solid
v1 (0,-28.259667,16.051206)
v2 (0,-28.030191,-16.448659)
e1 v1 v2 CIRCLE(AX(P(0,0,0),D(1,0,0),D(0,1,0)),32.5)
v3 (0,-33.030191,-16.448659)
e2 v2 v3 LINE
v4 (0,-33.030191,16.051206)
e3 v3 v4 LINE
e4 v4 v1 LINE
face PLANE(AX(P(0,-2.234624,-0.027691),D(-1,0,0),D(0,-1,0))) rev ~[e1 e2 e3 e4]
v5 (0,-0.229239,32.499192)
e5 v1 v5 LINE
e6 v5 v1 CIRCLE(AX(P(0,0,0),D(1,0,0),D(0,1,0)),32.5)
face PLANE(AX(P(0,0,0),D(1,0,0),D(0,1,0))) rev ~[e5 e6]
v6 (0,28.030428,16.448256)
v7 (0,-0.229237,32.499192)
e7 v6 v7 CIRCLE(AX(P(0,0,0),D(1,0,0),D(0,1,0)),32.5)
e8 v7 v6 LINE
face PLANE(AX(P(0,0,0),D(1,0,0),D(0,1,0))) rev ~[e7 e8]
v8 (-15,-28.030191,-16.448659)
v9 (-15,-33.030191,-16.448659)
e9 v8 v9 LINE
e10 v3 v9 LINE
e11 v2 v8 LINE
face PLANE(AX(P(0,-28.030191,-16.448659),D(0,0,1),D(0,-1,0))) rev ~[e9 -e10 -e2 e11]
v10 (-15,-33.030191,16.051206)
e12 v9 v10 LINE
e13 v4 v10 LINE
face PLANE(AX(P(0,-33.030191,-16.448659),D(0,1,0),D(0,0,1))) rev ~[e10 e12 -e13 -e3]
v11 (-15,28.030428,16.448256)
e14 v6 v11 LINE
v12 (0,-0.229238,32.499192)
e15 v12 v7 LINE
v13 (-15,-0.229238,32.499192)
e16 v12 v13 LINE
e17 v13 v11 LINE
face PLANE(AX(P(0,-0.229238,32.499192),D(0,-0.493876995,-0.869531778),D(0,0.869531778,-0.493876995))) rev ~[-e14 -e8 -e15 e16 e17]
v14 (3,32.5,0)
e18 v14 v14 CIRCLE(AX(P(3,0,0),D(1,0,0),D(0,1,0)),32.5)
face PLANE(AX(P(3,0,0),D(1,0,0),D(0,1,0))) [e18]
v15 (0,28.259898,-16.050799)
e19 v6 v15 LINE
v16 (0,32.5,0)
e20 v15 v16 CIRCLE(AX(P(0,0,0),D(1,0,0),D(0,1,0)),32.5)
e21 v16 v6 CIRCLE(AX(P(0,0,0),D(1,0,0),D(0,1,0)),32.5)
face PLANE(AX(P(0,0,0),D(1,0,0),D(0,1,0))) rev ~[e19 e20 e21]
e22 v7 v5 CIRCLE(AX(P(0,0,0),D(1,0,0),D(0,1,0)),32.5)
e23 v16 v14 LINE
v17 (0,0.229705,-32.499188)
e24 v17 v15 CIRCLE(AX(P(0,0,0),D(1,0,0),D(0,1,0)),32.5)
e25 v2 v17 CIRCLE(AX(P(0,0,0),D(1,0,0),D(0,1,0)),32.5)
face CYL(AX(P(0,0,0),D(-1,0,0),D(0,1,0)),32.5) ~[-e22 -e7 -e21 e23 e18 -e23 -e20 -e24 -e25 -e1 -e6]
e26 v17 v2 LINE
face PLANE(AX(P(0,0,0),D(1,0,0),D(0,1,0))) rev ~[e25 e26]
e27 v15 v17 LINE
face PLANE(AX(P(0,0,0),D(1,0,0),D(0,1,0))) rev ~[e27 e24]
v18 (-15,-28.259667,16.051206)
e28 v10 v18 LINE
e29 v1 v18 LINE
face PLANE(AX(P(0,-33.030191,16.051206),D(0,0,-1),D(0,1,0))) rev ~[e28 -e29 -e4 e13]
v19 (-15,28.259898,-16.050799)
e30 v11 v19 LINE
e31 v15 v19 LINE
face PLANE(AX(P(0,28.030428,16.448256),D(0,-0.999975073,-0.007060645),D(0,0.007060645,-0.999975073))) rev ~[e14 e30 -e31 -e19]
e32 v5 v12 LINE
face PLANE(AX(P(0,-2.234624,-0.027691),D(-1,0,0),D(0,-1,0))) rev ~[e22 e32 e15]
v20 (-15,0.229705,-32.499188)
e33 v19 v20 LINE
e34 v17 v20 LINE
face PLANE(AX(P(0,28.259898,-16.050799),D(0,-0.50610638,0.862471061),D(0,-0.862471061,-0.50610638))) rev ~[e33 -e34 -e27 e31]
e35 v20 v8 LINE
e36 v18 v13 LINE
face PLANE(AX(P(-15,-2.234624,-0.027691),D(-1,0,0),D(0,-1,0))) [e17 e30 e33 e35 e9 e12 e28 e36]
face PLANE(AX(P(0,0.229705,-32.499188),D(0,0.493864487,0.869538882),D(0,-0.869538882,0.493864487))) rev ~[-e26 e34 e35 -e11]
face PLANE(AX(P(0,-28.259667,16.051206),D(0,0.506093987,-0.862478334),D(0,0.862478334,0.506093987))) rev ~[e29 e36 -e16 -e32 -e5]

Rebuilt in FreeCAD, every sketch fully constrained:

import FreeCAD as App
import Part
import Sketcher
from FreeCAD import Vector
Q = App.Units.Quantity

doc = App.newDocument("Part")
body = doc.addObject("PartDesign::Body", "Body")

# Sketch on YZ plane
sketch1 = doc.addObject("Sketcher::SketchObject", "Sketch")
body.addObject(sketch1)
sketch1.AttachmentSupport = (doc.YZ_Plane, [""])
sketch1.MapMode = "FlatFace"
sketch1.addGeometry(Part.Circle(Vector(0, 0, 0), Vector(0, 0, 1), 32), False)
sketch1.addConstraint([
    Sketcher.Constraint("Coincident", 0, 3, -1, 1),
    Sketcher.Constraint("Diameter", 0, Q("65 mm")),
])
pad1 = doc.addObject("PartDesign::Pad", "Pad")
body.addObject(pad1)
pad1.Profile = sketch1
pad1.Length = 3

# Sketch on YZ plane
sketch2 = doc.addObject("Sketcher::SketchObject", "Sketch001")
body.addObject(sketch2)
sketch2.AttachmentSupport = (doc.YZ_Plane, [""])
sketch2.MapMode = "FlatFace"
sketch2.addGeometry([
    Part.LineSegment(Vector(-33, 16.1, 0), Vector(-28.3, 16.1, 0)),  # 0
    Part.LineSegment(Vector(-28.3, 16.1, 0), Vector(-0.2, 32.5, 0)),  # 1
    Part.LineSegment(Vector(-0.2, 32.5, 0), Vector(28, 16.4, 0)),  # 2
    Part.LineSegment(Vector(28, 16.4, 0), Vector(28.3, -16.1, 0)),  # 3
    Part.LineSegment(Vector(28.3, -16.1, 0), Vector(0.2, -32.5, 0)),  # 4
    Part.LineSegment(Vector(0.2, -32.5, 0), Vector(-28, -16.4, 0)),  # 5
    Part.LineSegment(Vector(-28, -16.4, 0), Vector(-33, -16.4, 0)),  # 6
    Part.LineSegment(Vector(-33, -16.4, 0), Vector(-33, 16.1, 0)),  # 7
], False)
sketch2.addConstraint([
    Sketcher.Constraint("Coincident", 0, 2, 1, 1),
    Sketcher.Constraint("Coincident", 1, 2, 2, 1),
    Sketcher.Constraint("Coincident", 2, 2, 3, 1),
    Sketcher.Constraint("Coincident", 3, 2, 4, 1),
    Sketcher.Constraint("Coincident", 4, 2, 5, 1),
    Sketcher.Constraint("Coincident", 5, 2, 6, 1),
    Sketcher.Constraint("Coincident", 6, 2, 7, 1),
    Sketcher.Constraint("Coincident", 7, 2, 0, 1),
    Sketcher.Constraint("Horizontal", 0),
    Sketcher.Constraint("Horizontal", 6),
    Sketcher.Constraint("Vertical", 7),
    Sketcher.Constraint("Equal", 1, 2),
    Sketcher.Constraint("Equal", 2, 3),
    Sketcher.Constraint("Equal", 3, 4),
    Sketcher.Constraint("Equal", 4, 5),
    Sketcher.Constraint("DistanceX", 6, 2, 6, 1, Q("5 mm")),
    Sketcher.Constraint("DistanceX", -1, 1, 3, 2, Q("28.259898 mm")),
    Sketcher.Constraint("DistanceY", 3, 2, -1, 1, Q("16.050799 mm")),
    Sketcher.Constraint("DistanceX", 0, 1, 0, 2, Q("4.770524 mm")),
    Sketcher.Constraint("DistanceY", 7, 1, 7, 2, Q("32.499865 mm")),
    Sketcher.Constraint("DistanceX", -1, 1, 2, 2, Q("28.030428 mm")),
    Sketcher.Constraint("DistanceX", 5, 2, -1, 1, Q("28.030191 mm")),
    Sketcher.Constraint("DistanceY", 5, 2, -1, 1, Q("16.448659 mm")),
    Sketcher.Constraint("DistanceX", 0, 2, 1, 2, Q("28.030429 mm")),
])
pad2 = doc.addObject("PartDesign::Pad", "Pad001")
body.addObject(pad2)
pad2.Profile = sketch2
pad2.Length = 15
pad2.Reversed = True

doc.recompute()
